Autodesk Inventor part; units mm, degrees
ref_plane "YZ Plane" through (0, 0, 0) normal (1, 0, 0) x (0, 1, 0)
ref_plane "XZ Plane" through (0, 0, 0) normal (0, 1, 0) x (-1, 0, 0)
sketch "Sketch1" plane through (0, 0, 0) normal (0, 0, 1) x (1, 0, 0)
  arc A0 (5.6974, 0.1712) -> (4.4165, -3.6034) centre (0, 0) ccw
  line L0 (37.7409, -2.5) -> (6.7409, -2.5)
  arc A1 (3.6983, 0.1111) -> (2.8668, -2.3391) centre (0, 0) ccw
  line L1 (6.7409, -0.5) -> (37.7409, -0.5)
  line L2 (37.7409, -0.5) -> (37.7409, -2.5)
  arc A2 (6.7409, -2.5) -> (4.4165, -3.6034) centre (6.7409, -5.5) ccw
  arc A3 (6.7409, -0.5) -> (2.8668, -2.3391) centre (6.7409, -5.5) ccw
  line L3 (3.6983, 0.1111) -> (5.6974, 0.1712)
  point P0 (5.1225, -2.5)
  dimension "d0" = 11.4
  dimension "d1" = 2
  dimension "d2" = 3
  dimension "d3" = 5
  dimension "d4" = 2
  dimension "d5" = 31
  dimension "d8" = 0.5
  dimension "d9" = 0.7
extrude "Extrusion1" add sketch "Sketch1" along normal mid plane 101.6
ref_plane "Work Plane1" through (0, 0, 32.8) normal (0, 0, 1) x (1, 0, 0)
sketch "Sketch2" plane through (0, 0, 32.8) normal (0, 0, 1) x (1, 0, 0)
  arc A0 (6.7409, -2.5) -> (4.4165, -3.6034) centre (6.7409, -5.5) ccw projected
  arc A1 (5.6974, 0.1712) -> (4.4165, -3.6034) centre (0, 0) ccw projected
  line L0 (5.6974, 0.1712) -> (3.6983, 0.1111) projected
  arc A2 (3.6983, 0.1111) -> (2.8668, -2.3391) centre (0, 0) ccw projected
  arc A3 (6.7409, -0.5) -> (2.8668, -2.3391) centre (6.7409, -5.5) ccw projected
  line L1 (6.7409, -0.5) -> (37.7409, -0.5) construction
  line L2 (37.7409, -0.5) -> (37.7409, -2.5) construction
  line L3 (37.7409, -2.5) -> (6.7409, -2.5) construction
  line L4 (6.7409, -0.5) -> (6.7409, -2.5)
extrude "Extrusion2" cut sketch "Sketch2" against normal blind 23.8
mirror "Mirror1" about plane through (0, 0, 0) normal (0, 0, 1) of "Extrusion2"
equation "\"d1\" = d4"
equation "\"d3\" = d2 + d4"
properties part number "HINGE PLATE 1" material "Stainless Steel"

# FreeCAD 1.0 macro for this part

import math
import FreeCAD as App
import Part
import Sketcher
from FreeCAD import Vector
Q = App.Units.Quantity

doc = App.newDocument("Part")
params = doc.addObject("Spreadsheet::Sheet", "Params")
for row, (alias, value) in enumerate([
    ("sketch1_radius", "3 mm"),
    ("sketch1_radius2", "5 mm"),
    ("sketch1_radius3", "5.7 mm"),
    ("sketch1_width", "31 mm"),
    ("pad1_length", "101.6 mm"),
    ("sketch2_radius", "3 mm"),
    ("sketch2_radius2", "5 mm"),
    ("sketch2_radius3", "3.7 mm"),
    ("pocket1_length", "23.8 mm"),
], start=1):
    params.set(f"A{row}", alias)
    params.set(f"B{row}", "=" + value)
    params.setAlias(f"B{row}", alias)

body = doc.addObject("PartDesign::Body", "Body")

# Sketch on XY plane
sketch1 = body.newObject("Sketcher::SketchObject", "Sketch")
sketch1.AttachmentSupport = (doc.getObject("XY_Plane"), [""])
sketch1.MapMode = "FlatFace"
sketch1.addGeometry(Part.LineSegment(Vector(3.6983, 0.1111, 0), Vector(5.6974, 0.1712, 0)), False)
sketch1.addGeometry(Part.ArcOfCircle(Part.Circle(Vector(0, 0, 0), Vector(0, 0, 1), 5.699972), math.radians(1.721151), math.radians(320.789169)), False)
sketch1.addGeometry(Part.ArcOfCircle(Part.Circle(Vector(6.7409, -5.5, 0), Vector(0, 0, 1), 3), math.radians(90), math.radians(140.787188)), False)
sketch1.addGeometry(Part.LineSegment(Vector(6.7409, -2.5, 0), Vector(37.7409, -2.5, 0)), False)
sketch1.addGeometry(Part.LineSegment(Vector(37.7409, -2.5, 0), Vector(37.7409, -0.5, 0)), False)
sketch1.addGeometry(Part.LineSegment(Vector(37.7409, -0.5, 0), Vector(6.7409, -0.5, 0)), False)
sketch1.addGeometry(Part.ArcOfCircle(Part.Circle(Vector(6.7409, -5.5, 0), Vector(0, 0, 1), 5), math.radians(90), math.radians(140.788801)), False)
sketch1.addGeometry(Part.ArcOfCircle(Part.Circle(Vector(0, 0, 0), Vector(0, 0, 1), 3.699968), math.radians(1.720695), math.radians(320.78806)), False)
sketch1.addConstraint(Sketcher.Constraint("Coincident", 0, 2, 1, 1))
sketch1.addConstraint(Sketcher.Constraint("Tangent", 1, 2, 2, 2))
sketch1.addConstraint(Sketcher.Constraint("Tangent", 2, 1, 3, 1))
sketch1.addConstraint(Sketcher.Constraint("Coincident", 3, 2, 4, 1))
sketch1.addConstraint(Sketcher.Constraint("Coincident", 4, 2, 5, 1))
sketch1.addConstraint(Sketcher.Constraint("Tangent", 5, 2, 6, 1))
sketch1.addConstraint(Sketcher.Constraint("Tangent", 6, 2, 7, 2))
sketch1.addConstraint(Sketcher.Constraint("Coincident", 7, 1, 0, 1))
sketch1.addConstraint(Sketcher.Constraint("Horizontal", 3))
sketch1.addConstraint(Sketcher.Constraint("Vertical", 4))
sketch1.addConstraint(Sketcher.Constraint("Horizontal", 5))
sketch1.addConstraint(Sketcher.Constraint("Coincident", 1, 3, -1, 1))
sketch1.addConstraint(Sketcher.Constraint("Coincident", 7, 3, -1, 1))
sketch1.addConstraint(Sketcher.Constraint("Coincident", 6, 3, 2, 3))
sketch1.addConstraint(Sketcher.Constraint("Radius", 2, Q("3 mm")))
sketch1.addConstraint(Sketcher.Constraint("Radius", 6, Q("5 mm")))
sketch1.addConstraint(Sketcher.Constraint("Radius", 1, Q("5.7 mm")))
sketch1.addConstraint(Sketcher.Constraint("DistanceX", 3, 1, 3, 2, Q("31 mm")))
sketch1.addConstraint(Sketcher.Constraint("DistanceY", 4, 2, -1, 1, Q("0.5 mm")))
sketch1.addConstraint(Sketcher.Constraint("DistanceY", 7, 1, 0, 2, Q("0.06 mm")))
sketch1.addConstraint(Sketcher.Constraint("DistanceY", -1, 1, 7, 1, Q("0.111 mm")))
sketch1.setExpression("Constraints[14]", "Params.sketch1_radius")
sketch1.setExpression("Constraints[15]", "Params.sketch1_radius2")
sketch1.setExpression("Constraints[16]", "Params.sketch1_radius3")
sketch1.setExpression("Constraints[17]", "Params.sketch1_width")
pad1 = body.newObject("PartDesign::Pad", "Pad")
pad1.Profile = sketch1
pad1.setExpression("Length", "Params.pad1_length")
pad1.Midplane = True

# Sketch on XY plane
sketch2 = body.newObject("Sketcher::SketchObject", "Sketch001")
sketch2.AttachmentSupport = (doc.getObject("XY_Plane"), [""])
sketch2.MapMode = "FlatFace"
sketch2.AttachmentOffset = App.Placement(Vector(0, 0, 32.8), App.Rotation())
sketch2.addGeometry(Part.ArcOfCircle(Part.Circle(Vector(6.7409, -5.5, 0), Vector(0, 0, 1), 3), math.radians(90), math.radians(140.787188)), False)
sketch2.addGeometry(Part.LineSegment(Vector(6.7409, -2.5, 0), Vector(6.7409, -0.5, 0)), False)
sketch2.addGeometry(Part.ArcOfCircle(Part.Circle(Vector(6.7409, -5.5, 0), Vector(0, 0, 1), 5), math.radians(90), math.radians(140.788801)), False)
sketch2.addGeometry(Part.ArcOfCircle(Part.Circle(Vector(0, 0, 0), Vector(0, 0, 1), 3.699968), math.radians(1.720695), math.radians(320.78806)), False)
sketch2.addGeometry(Part.LineSegment(Vector(3.6983, 0.1111, 0), Vector(5.6974, 0.1712, 0)), False)
sketch2.addGeometry(Part.ArcOfCircle(Part.Circle(Vector(0, 0, 0), Vector(0, 0, 1), 5.699972), math.radians(1.721151), math.radians(320.789169)), False)
sketch2.addConstraint(Sketcher.Constraint("Coincident", 0, 1, 1, 1))
sketch2.addConstraint(Sketcher.Constraint("Coincident", 1, 2, 2, 1))
sketch2.addConstraint(Sketcher.Constraint("Tangent", 2, 2, 3, 2))
sketch2.addConstraint(Sketcher.Constraint("Coincident", 3, 1, 4, 1))
sketch2.addConstraint(Sketcher.Constraint("Coincident", 4, 2, 5, 1))
sketch2.addConstraint(Sketcher.Constraint("Tangent", 5, 2, 0, 2))
sketch2.addConstraint(Sketcher.Constraint("Vertical", 1))
sketch2.addConstraint(Sketcher.Constraint("Coincident", 3, 3, -1, 1))
sketch2.addConstraint(Sketcher.Constraint("Coincident", 5, 3, -1, 1))
sketch2.addConstraint(Sketcher.Constraint("Coincident", 2, 3, 0, 3))
sketch2.addConstraint(Sketcher.Constraint("Vertical", 2, 3, 0, 1))
sketch2.addConstraint(Sketcher.Constraint("Radius", 0, Q("3 mm")))
sketch2.addConstraint(Sketcher.Constraint("Radius", 2, Q("5 mm")))
sketch2.addConstraint(Sketcher.Constraint("Radius", 3, Q("3.7 mm")))
sketch2.addConstraint(Sketcher.Constraint("DistanceY", 0, 3, -1, 1, Q("5.5 mm")))
sketch2.addConstraint(Sketcher.Constraint("DistanceY", 3, 1, 4, 2, Q("0.06 mm")))
sketch2.addConstraint(Sketcher.Constraint("DistanceY", -1, 1, 3, 1, Q("0.111 mm")))
sketch2.setExpression("Constraints[11]", "Params.sketch2_radius")
sketch2.setExpression("Constraints[12]", "Params.sketch2_radius2")
sketch2.setExpression("Constraints[13]", "Params.sketch2_radius3")
pocket1 = body.newObject("PartDesign::Pocket", "Pocket")
pocket1.Profile = sketch2
pocket1.setExpression("Length", "Params.pocket1_length")
doc.recompute()

mirrored = body.newObject("PartDesign::Mirrored", "Mirrored")
mirrored.Originals = [pocket1]
mirrored.MirrorPlane = (doc.getObject("XY_Plane"), [""])
body.Tip = mirrored

doc.recompute()
